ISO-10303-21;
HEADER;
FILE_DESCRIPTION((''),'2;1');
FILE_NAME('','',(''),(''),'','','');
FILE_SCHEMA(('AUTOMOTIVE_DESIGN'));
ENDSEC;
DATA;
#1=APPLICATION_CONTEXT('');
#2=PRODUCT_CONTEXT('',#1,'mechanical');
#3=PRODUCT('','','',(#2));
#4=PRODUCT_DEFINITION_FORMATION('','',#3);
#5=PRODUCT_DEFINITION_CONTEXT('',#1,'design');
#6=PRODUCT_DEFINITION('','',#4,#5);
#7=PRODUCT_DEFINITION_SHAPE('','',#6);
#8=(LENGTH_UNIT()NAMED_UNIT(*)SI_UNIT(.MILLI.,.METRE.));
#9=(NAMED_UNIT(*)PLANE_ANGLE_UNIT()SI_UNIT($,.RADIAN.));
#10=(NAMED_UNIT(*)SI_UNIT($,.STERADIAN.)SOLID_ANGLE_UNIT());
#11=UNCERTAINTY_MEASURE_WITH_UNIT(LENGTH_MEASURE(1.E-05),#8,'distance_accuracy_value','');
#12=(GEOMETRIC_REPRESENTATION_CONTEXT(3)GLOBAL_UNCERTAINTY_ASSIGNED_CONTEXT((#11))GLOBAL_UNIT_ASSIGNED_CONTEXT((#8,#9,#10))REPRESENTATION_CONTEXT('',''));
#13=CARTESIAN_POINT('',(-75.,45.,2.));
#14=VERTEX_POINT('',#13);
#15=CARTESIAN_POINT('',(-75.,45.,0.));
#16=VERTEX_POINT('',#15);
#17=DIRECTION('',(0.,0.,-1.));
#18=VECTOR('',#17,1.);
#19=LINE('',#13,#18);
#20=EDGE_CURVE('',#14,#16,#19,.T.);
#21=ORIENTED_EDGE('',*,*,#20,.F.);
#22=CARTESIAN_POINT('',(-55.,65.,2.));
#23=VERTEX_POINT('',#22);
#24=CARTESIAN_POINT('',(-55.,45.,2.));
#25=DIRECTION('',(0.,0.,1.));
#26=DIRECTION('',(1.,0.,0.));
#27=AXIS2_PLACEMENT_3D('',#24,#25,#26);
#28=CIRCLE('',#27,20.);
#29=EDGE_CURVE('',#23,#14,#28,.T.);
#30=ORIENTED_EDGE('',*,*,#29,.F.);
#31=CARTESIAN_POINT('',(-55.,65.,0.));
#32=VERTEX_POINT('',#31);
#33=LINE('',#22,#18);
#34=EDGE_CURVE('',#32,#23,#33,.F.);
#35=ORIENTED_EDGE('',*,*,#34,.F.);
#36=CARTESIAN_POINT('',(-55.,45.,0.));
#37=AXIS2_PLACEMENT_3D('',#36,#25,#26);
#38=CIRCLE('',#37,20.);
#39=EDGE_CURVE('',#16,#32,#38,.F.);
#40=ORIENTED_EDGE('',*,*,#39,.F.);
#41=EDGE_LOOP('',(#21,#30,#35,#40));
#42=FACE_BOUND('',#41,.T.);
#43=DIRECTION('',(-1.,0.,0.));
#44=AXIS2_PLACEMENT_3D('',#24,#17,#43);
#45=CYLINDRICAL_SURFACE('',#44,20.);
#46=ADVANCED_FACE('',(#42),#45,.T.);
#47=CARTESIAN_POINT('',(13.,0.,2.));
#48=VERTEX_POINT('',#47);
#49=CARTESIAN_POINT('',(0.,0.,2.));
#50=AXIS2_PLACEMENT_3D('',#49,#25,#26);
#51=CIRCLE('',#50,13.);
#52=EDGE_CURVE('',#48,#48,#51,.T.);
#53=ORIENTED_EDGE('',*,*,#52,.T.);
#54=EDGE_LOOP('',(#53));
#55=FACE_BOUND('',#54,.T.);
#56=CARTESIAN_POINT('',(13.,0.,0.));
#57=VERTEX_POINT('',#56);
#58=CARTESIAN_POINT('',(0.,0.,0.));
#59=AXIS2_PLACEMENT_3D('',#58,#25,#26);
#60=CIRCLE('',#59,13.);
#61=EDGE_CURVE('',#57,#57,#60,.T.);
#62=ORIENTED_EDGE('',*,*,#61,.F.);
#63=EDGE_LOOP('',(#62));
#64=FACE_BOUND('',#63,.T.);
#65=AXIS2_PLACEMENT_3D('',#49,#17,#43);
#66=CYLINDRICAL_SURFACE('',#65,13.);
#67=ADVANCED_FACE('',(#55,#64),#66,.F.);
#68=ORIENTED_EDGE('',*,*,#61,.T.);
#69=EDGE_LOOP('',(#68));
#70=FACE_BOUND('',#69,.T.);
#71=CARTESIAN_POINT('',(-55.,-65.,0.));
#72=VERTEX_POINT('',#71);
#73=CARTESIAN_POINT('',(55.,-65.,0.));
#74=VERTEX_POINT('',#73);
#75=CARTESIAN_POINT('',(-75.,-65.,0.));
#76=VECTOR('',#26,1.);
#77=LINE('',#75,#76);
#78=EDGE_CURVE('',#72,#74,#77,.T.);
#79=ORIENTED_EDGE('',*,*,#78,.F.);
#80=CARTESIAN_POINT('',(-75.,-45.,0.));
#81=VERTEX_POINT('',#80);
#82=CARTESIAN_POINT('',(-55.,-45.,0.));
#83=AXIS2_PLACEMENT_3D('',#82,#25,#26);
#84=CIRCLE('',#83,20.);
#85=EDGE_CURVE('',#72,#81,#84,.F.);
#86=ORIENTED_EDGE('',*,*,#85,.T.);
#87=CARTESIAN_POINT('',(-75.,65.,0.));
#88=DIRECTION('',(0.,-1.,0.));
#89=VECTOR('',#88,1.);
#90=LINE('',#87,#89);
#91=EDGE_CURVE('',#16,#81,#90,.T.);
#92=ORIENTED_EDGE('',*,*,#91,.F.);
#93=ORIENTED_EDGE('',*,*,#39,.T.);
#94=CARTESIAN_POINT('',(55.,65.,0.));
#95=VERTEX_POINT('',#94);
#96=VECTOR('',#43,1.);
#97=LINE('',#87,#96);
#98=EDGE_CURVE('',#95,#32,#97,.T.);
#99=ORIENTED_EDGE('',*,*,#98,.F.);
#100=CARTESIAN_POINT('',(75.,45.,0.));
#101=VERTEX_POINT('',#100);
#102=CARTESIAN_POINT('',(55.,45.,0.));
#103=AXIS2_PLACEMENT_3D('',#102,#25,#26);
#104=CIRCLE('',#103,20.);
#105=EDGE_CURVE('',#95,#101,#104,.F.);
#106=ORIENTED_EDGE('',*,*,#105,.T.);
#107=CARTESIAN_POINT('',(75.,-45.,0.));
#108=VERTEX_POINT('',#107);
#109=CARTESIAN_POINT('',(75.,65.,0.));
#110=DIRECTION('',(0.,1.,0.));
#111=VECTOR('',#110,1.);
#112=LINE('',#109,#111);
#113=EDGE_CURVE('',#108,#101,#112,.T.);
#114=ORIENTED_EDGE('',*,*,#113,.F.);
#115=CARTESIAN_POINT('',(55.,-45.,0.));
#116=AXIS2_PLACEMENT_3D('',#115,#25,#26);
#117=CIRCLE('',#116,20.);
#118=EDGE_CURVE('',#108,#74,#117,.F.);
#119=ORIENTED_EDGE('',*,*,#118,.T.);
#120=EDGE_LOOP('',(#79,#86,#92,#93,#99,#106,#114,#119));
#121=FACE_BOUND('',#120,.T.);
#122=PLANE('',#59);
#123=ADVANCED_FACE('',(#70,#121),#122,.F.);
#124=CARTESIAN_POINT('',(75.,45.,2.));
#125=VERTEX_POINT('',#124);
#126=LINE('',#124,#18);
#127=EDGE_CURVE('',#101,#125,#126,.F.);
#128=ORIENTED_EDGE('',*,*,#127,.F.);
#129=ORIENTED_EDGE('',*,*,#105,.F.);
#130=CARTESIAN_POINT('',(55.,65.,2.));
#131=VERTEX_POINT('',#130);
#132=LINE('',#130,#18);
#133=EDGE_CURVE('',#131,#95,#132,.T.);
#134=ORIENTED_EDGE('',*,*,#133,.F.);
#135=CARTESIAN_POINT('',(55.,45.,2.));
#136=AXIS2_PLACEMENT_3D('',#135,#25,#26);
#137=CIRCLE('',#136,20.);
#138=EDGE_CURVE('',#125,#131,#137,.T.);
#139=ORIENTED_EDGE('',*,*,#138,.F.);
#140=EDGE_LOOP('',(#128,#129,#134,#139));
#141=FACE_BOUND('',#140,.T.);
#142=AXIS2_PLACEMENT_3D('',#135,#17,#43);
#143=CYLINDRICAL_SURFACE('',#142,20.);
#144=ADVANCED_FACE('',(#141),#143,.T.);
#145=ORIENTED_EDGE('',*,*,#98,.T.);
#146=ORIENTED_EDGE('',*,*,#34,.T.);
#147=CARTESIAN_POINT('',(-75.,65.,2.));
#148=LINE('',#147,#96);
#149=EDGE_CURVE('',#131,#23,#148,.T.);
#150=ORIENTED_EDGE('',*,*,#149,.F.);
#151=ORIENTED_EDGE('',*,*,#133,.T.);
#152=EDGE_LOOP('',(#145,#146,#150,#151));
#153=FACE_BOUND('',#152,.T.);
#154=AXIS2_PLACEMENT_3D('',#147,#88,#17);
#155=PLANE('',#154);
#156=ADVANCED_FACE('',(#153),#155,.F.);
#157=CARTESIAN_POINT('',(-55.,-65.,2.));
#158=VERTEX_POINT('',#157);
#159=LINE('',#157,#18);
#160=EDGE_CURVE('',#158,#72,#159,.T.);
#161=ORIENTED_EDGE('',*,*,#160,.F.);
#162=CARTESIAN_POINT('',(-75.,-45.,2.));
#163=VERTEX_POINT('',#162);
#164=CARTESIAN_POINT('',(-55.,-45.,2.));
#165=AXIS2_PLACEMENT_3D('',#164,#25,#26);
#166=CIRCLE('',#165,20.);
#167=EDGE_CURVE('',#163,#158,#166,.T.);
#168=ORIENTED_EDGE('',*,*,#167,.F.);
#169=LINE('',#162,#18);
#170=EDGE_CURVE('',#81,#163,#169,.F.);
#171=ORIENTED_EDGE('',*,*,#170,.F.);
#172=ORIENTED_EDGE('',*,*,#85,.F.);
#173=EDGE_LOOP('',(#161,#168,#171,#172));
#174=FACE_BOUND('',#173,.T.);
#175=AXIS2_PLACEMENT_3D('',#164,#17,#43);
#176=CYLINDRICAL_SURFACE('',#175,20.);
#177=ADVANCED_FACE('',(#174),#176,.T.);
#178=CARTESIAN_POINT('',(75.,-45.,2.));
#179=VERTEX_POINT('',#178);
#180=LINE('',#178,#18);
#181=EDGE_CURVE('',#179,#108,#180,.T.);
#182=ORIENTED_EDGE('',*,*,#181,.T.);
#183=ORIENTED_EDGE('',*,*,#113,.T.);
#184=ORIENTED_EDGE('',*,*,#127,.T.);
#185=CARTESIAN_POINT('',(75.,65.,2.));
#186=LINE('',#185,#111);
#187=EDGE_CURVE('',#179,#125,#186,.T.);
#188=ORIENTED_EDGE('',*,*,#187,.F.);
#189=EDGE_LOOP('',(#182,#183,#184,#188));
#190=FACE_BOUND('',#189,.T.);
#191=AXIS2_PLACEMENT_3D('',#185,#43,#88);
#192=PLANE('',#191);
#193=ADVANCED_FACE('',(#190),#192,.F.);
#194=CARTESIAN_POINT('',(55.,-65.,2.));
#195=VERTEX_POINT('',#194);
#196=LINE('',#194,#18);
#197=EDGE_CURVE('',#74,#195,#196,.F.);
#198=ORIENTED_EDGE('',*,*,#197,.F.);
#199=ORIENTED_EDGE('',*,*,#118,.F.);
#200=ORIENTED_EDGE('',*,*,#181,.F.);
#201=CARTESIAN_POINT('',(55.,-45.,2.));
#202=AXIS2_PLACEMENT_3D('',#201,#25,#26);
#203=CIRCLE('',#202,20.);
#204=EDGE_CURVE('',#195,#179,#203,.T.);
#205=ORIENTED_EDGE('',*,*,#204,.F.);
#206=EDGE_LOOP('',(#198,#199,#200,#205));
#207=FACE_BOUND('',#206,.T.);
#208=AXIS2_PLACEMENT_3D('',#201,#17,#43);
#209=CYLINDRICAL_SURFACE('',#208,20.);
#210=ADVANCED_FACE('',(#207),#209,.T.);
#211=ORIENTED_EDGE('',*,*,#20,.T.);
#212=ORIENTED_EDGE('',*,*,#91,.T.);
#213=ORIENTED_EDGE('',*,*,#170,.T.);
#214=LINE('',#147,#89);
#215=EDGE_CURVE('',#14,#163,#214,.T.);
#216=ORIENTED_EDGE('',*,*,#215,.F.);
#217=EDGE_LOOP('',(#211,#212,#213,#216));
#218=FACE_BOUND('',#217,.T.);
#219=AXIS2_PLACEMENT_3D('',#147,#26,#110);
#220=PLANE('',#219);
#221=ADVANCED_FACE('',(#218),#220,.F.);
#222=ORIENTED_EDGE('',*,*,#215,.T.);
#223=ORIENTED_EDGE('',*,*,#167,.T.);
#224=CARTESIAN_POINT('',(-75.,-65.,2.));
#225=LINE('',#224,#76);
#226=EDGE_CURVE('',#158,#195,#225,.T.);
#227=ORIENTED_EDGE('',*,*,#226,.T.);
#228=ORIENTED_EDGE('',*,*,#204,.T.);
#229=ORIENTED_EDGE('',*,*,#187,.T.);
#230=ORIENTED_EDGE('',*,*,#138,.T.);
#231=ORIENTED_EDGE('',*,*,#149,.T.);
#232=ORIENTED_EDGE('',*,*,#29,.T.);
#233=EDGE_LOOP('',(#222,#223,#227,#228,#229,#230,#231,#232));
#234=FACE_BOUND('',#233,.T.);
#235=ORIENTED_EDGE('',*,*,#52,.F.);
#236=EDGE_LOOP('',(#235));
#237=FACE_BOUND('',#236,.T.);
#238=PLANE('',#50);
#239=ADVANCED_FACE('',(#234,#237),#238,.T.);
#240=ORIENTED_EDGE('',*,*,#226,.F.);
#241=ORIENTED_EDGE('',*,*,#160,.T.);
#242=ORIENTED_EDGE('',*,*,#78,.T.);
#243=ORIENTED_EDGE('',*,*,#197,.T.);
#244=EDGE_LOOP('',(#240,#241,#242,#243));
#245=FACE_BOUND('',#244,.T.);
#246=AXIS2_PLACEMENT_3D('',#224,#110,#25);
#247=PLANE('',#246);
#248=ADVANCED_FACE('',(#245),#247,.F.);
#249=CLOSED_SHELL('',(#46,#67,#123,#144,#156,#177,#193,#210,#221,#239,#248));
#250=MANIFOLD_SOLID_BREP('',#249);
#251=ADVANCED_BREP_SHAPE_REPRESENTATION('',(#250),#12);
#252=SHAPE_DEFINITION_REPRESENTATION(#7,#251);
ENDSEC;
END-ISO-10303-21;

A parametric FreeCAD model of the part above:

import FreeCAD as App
import Part
import Sketcher
Q = App.Units.Quantity


def edges_at(feature, points):
    """Names of the edges that pass closest to the given points."""
    edges = feature.Shape.Edges
    near = lambda p: min(range(len(edges)), key=lambda i: edges[i].distToShape(Part.Vertex(*p))[0])
    return sorted({f"Edge{near(p) + 1}" for p in points})

doc = App.newDocument("Part")
body = doc.addObject("PartDesign::Body", "Body")

# Sketch on XY plane
sketch1 = body.newObject("Sketcher::SketchObject", "Sketch")
sketch1.AttachmentSupport = (doc.getObject("XY_Plane"), [""])
sketch1.MapMode = "FlatFace"
sketch1.addGeometry([
    Part.LineSegment(App.Vector(-75, 65, 0), App.Vector(-75, -65, 0)),  # 0
    Part.LineSegment(App.Vector(-75, -65, 0), App.Vector(75, -65, 0)),  # 1
    Part.LineSegment(App.Vector(75, -65, 0), App.Vector(75, 65, 0)),  # 2
    Part.LineSegment(App.Vector(75, 65, 0), App.Vector(-75, 65, 0)),  # 3
    Part.Circle(App.Vector(0, 0, 0), App.Vector(0, 0, 1), 13),  # 4
], False)
sketch1.addConstraint([
    Sketcher.Constraint("Coincident", 0, 2, 1, 1),
    Sketcher.Constraint("Coincident", 1, 2, 2, 1),
    Sketcher.Constraint("Coincident", 2, 2, 3, 1),
    Sketcher.Constraint("Coincident", 3, 2, 0, 1),
    Sketcher.Constraint("Vertical", 0),
    Sketcher.Constraint("Horizontal", 1),
    Sketcher.Constraint("Vertical", 2),
    Sketcher.Constraint("Horizontal", 3),
    Sketcher.Constraint("Coincident", 4, 3, -1, 1),
    Sketcher.Constraint("Symmetric", 0, 2, 2, 2, -1, 1),
    Sketcher.Constraint("Diameter", 4, Q("26 mm")),
    Sketcher.Constraint("DistanceX", 1, 1, 1, 2, Q("150 mm")),
    Sketcher.Constraint("DistanceY", 0, 2, 0, 1, Q("130 mm")),
])
pad1 = body.newObject("PartDesign::Pad", "Pad")
pad1.Profile = sketch1
pad1.Length = 2
doc.recompute()

fillet = body.newObject("PartDesign::Fillet", "Fillet")
fillet.Base = (pad1, edges_at(pad1, [
    (75, -65, 1),
    (-75, -65, 1),
    (-75, 65, 1),
    (75, 65, 1),
]))
fillet.Radius = 20

doc.recompute()
